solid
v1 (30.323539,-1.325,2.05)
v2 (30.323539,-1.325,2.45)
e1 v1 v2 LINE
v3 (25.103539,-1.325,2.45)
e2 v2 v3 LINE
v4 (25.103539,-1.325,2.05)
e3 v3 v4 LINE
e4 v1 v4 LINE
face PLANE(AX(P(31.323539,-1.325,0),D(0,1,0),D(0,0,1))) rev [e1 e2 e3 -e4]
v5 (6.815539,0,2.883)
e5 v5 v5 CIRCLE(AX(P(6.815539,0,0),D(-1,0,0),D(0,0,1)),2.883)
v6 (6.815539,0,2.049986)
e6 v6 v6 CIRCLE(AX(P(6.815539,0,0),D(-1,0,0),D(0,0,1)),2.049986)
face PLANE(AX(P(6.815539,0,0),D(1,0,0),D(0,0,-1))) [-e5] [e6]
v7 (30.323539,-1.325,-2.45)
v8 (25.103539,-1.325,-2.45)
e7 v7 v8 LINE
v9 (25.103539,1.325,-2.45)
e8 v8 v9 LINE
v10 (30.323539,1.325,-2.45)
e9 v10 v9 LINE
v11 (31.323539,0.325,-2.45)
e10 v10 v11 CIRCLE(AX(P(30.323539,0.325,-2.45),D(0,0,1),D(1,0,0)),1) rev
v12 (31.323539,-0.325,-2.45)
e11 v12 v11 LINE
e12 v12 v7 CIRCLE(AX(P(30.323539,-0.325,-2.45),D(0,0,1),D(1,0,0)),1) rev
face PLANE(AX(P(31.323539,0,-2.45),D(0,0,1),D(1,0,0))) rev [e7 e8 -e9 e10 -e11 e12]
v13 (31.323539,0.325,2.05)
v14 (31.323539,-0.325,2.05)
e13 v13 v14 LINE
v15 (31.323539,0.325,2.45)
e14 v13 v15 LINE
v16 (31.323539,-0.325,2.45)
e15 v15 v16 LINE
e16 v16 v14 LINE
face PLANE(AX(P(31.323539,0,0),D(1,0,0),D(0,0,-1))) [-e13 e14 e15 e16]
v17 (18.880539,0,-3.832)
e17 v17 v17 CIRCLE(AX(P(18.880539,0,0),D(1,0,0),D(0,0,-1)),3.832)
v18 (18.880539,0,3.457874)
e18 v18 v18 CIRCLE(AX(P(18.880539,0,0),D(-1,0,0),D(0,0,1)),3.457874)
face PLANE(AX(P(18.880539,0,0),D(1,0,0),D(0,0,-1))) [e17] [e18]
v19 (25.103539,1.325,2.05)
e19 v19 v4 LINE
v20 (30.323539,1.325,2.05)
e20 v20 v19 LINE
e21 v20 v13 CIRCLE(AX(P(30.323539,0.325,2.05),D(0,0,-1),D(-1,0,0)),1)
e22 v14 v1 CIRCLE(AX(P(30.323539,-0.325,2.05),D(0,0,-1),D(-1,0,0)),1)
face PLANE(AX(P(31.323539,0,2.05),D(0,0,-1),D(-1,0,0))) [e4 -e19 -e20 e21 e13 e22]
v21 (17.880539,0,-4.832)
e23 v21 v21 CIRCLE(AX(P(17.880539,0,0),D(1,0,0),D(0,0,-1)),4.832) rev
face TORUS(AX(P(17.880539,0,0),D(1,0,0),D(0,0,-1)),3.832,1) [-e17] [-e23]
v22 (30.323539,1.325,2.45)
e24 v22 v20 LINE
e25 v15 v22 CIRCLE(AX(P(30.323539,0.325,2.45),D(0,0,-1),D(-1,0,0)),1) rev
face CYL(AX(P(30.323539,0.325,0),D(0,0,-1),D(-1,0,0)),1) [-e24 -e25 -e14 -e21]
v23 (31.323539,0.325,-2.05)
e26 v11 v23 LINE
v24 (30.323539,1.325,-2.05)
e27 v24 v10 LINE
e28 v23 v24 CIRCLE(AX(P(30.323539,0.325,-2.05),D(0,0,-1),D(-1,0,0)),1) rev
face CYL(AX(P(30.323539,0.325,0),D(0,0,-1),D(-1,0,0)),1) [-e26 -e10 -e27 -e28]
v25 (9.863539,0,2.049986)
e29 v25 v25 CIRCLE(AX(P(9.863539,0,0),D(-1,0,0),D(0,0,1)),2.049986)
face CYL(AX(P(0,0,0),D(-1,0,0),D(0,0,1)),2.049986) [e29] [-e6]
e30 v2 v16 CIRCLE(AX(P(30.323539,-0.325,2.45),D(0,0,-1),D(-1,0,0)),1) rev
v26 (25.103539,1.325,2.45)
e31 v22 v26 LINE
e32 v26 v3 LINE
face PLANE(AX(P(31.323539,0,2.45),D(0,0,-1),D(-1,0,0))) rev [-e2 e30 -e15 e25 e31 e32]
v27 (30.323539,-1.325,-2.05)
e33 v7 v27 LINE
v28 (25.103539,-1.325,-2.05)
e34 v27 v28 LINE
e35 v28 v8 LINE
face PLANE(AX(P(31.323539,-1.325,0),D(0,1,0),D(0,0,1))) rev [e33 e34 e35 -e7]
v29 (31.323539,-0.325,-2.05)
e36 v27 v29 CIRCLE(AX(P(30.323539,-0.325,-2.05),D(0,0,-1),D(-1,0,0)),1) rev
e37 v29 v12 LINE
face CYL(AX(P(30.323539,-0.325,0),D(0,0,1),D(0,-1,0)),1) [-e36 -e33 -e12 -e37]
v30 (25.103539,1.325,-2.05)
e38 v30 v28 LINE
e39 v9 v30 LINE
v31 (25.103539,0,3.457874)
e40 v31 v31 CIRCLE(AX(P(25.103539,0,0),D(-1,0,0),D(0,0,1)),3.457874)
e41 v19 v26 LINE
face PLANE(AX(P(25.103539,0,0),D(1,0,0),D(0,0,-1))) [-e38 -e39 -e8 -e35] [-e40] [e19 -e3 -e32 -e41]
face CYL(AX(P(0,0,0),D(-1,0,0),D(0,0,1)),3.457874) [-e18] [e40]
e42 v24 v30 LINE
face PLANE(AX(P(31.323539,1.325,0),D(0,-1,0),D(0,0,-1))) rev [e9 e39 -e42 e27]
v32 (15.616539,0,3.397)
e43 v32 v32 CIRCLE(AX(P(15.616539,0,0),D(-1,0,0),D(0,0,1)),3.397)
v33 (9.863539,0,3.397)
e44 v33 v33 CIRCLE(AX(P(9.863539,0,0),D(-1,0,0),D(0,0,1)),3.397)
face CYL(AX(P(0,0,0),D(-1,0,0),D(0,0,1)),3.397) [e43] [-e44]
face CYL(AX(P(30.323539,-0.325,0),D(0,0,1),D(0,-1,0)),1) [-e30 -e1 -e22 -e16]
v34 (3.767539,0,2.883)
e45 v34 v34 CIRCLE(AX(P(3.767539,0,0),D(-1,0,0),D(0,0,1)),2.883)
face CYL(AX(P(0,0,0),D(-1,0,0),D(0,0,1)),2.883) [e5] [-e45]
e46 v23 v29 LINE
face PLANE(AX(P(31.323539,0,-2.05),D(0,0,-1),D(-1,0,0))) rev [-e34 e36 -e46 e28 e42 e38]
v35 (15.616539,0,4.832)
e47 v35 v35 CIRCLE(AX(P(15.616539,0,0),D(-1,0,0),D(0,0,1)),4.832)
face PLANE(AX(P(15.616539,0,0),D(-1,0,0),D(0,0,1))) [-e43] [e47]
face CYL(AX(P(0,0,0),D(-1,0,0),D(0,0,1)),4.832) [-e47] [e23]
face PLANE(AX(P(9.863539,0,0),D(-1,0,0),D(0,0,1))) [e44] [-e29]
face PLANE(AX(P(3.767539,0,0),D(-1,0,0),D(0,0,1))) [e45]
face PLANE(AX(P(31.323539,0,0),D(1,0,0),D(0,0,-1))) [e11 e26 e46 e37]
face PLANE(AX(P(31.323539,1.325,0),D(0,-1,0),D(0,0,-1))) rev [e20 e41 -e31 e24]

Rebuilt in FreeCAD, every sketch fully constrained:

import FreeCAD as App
import Part
import Sketcher
from FreeCAD import Vector
Q = App.Units.Quantity


def edges_at(feature, points):
    """Names of the edges that pass closest to the given points."""
    edges = feature.Shape.Edges
    near = lambda p: min(range(len(edges)), key=lambda i: edges[i].distToShape(Part.Vertex(*p))[0])
    return sorted({f"Edge{near(p) + 1}" for p in points})

doc = App.newDocument("Part")
body = doc.addObject("PartDesign::Body", "Body")

sketch1 = doc.addObject("Sketcher::SketchObject", "Sketch")
body.addObject(sketch1)
sketch1.AttachmentSupport = (doc.XY_Plane, [""])
sketch1.MapMode = "FlatFace"
sketch1.addGeometry([
    Part.LineSegment(Vector(3.8, 0, 0), Vector(25.1, 0, 0)),
    Part.LineSegment(Vector(25.1, 0, 0), Vector(25.1, 3.5, 0)),
    Part.LineSegment(Vector(25.1, 3.5, 0), Vector(18.9, 3.5, 0)),
    Part.LineSegment(Vector(18.9, 3.5, 0), Vector(18.9, 4.8, 0)),
    Part.LineSegment(Vector(18.9, 4.8, 0), Vector(15.6, 4.8, 0)),
    Part.LineSegment(Vector(15.6, 4.8, 0), Vector(15.6, 3.4, 0)),
    Part.LineSegment(Vector(15.6, 3.4, 0), Vector(9.9, 3.4, 0)),
    Part.LineSegment(Vector(9.9, 3.4, 0), Vector(9.9, 2, 0)),
    Part.LineSegment(Vector(9.9, 2, 0), Vector(6.8, 2, 0)),
    Part.LineSegment(Vector(6.8, 2, 0), Vector(6.8, 2.9, 0)),
    Part.LineSegment(Vector(6.8, 2.9, 0), Vector(3.8, 2.9, 0)),
    Part.LineSegment(Vector(3.8, 2.9, 0), Vector(3.8, 0, 0)),
], False)
sketch1.addConstraint([
    Sketcher.Constraint("Coincident", 0, 2, 1, 1),
    Sketcher.Constraint("Coincident", 1, 2, 2, 1),
    Sketcher.Constraint("Coincident", 2, 2, 3, 1),
    Sketcher.Constraint("Coincident", 3, 2, 4, 1),
    Sketcher.Constraint("Coincident", 4, 2, 5, 1),
    Sketcher.Constraint("Coincident", 5, 2, 6, 1),
    Sketcher.Constraint("Coincident", 6, 2, 7, 1),
    Sketcher.Constraint("Coincident", 7, 2, 8, 1),
    Sketcher.Constraint("Coincident", 8, 2, 9, 1),
    Sketcher.Constraint("Coincident", 9, 2, 10, 1),
    Sketcher.Constraint("Coincident", 10, 2, 11, 1),
    Sketcher.Constraint("Coincident", 11, 2, 0, 1),
    Sketcher.Constraint("Horizontal", 0),
    Sketcher.Constraint("Vertical", 1),
    Sketcher.Constraint("Horizontal", 2),
    Sketcher.Constraint("Vertical", 3),
    Sketcher.Constraint("Horizontal", 4),
    Sketcher.Constraint("Vertical", 5),
    Sketcher.Constraint("Horizontal", 6),
    Sketcher.Constraint("Vertical", 7),
    Sketcher.Constraint("Horizontal", 8),
    Sketcher.Constraint("Vertical", 9),
    Sketcher.Constraint("Horizontal", 10),
    Sketcher.Constraint("Vertical", 11),
    Sketcher.Constraint("PointOnObject", 0, 2, -1),
    Sketcher.Constraint("Equal", 8, 10),
    Sketcher.Constraint("DistanceX", 0, 1, 0, 2, Q("0.84 in")),
    Sketcher.Constraint("DistanceX", 8, 2, 8, 1, Q("0.12 in")),
    Sketcher.Constraint("DistanceX", 2, 2, 2, 1, Q("0.245 in")),
    Sketcher.Constraint("DistanceX", 4, 2, 4, 1, Q("3.264 mm")),
    Sketcher.Constraint("DistanceY", 5, 2, 5, 1, Q("1.435 mm")),
    Sketcher.Constraint("DistanceY", 11, 2, 11, 1, Q("2.883 mm")),
    Sketcher.Constraint("DistanceY", -1, 1, 3, 2, Q("4.832 mm")),
    Sketcher.Constraint("DistanceY", 1, 1, 1, 2, Q("3.457874 mm")),
    Sketcher.Constraint("DistanceY", 7, 2, 7, 1, Q("1.347014 mm")),
    Sketcher.Constraint("DistanceX", -1, 1, 0, 2, Q("25.103539 mm")),
])
revolution = doc.addObject("PartDesign::Revolution", "Revolution")
body.addObject(revolution)
revolution.Profile = sketch1
revolution.ReferenceAxis = (sketch1, ["H_Axis"])
revolution.Angle = 360
doc.recompute()

fillet = doc.addObject("PartDesign::Fillet", "Fillet")
body.addObject(fillet)
fillet.Base = (revolution, edges_at(revolution, [(18.881, 0, -4.832)]))
fillet.Radius = 1

sketch2 = doc.addObject("Sketcher::SketchObject", "Sketch001")
body.addObject(sketch2)
sketch2.AttachmentSupport = (doc.YZ_Plane, [""])
sketch2.MapMode = "FlatFace"
sketch2.AttachmentOffset = App.Placement(Vector(0, 0, 25.103539), App.Rotation())
sketch2.addGeometry([
    Part.LineSegment(Vector(1.32, 2.45, 0), Vector(-1.32, 2.45, 0)),
    Part.LineSegment(Vector(-1.32, 2.45, 0), Vector(-1.32, 2.05, 0)),
    Part.LineSegment(Vector(-1.32, 2.05, 0), Vector(1.32, 2.05, 0)),
    Part.LineSegment(Vector(1.32, 2.05, 0), Vector(1.32, 2.45, 0)),
    Part.LineSegment(Vector(1.32, -2.05, 0), Vector(-1.32, -2.05, 0)),
    Part.LineSegment(Vector(-1.32, -2.05, 0), Vector(-1.32, -2.45, 0)),
    Part.LineSegment(Vector(-1.32, -2.45, 0), Vector(1.32, -2.45, 0)),
    Part.LineSegment(Vector(1.32, -2.45, 0), Vector(1.32, -2.05, 0)),
], False)
sketch2.addConstraint([
    Sketcher.Constraint("Coincident", 0, 2, 1, 1),
    Sketcher.Constraint("Coincident", 1, 2, 2, 1),
    Sketcher.Constraint("Coincident", 2, 2, 3, 1),
    Sketcher.Constraint("Coincident", 3, 2, 0, 1),
    Sketcher.Constraint("Coincident", 4, 2, 5, 1),
    Sketcher.Constraint("Coincident", 5, 2, 6, 1),
    Sketcher.Constraint("Coincident", 6, 2, 7, 1),
    Sketcher.Constraint("Coincident", 7, 2, 4, 1),
    Sketcher.Constraint("Horizontal", 0),
    Sketcher.Constraint("Vertical", 1),
    Sketcher.Constraint("Horizontal", 2),
    Sketcher.Constraint("Vertical", 3),
    Sketcher.Constraint("Horizontal", 4),
    Sketcher.Constraint("Vertical", 5),
    Sketcher.Constraint("Horizontal", 6),
    Sketcher.Constraint("Vertical", 7),
    Sketcher.Constraint("Symmetric", 2, 2, 4, 2, -1, 1),
    Sketcher.Constraint("Symmetric", 0, 2, 6, 2, -1, 1),
    Sketcher.Constraint("Vertical", 1, 2, 4, 2),
    Sketcher.Constraint("DistanceX", 0, 2, 0, 1, Q("2.65 mm")),
    Sketcher.Constraint("DistanceY", 1, 2, 1, 1, Q("0.4 mm")),
    Sketcher.Constraint("DistanceY", -1, 1, 0, 2, Q("2.45 mm")),
])
pad1 = doc.addObject("PartDesign::Pad", "Pad")
body.addObject(pad1)
pad1.Profile = sketch2
pad1.Length = 6.22
doc.recompute()

fillet2 = doc.addObject("PartDesign::Fillet", "Fillet001")
body.addObject(fillet2)
fillet2.Base = (pad1, edges_at(pad1, [
    (31.324, 1.325, 2.25),
    (31.324, -1.325, 2.25),
    (31.324, 1.325, -2.25),
    (31.324, -1.325, -2.25),
]))
fillet2.Radius = 1

doc.recompute()
